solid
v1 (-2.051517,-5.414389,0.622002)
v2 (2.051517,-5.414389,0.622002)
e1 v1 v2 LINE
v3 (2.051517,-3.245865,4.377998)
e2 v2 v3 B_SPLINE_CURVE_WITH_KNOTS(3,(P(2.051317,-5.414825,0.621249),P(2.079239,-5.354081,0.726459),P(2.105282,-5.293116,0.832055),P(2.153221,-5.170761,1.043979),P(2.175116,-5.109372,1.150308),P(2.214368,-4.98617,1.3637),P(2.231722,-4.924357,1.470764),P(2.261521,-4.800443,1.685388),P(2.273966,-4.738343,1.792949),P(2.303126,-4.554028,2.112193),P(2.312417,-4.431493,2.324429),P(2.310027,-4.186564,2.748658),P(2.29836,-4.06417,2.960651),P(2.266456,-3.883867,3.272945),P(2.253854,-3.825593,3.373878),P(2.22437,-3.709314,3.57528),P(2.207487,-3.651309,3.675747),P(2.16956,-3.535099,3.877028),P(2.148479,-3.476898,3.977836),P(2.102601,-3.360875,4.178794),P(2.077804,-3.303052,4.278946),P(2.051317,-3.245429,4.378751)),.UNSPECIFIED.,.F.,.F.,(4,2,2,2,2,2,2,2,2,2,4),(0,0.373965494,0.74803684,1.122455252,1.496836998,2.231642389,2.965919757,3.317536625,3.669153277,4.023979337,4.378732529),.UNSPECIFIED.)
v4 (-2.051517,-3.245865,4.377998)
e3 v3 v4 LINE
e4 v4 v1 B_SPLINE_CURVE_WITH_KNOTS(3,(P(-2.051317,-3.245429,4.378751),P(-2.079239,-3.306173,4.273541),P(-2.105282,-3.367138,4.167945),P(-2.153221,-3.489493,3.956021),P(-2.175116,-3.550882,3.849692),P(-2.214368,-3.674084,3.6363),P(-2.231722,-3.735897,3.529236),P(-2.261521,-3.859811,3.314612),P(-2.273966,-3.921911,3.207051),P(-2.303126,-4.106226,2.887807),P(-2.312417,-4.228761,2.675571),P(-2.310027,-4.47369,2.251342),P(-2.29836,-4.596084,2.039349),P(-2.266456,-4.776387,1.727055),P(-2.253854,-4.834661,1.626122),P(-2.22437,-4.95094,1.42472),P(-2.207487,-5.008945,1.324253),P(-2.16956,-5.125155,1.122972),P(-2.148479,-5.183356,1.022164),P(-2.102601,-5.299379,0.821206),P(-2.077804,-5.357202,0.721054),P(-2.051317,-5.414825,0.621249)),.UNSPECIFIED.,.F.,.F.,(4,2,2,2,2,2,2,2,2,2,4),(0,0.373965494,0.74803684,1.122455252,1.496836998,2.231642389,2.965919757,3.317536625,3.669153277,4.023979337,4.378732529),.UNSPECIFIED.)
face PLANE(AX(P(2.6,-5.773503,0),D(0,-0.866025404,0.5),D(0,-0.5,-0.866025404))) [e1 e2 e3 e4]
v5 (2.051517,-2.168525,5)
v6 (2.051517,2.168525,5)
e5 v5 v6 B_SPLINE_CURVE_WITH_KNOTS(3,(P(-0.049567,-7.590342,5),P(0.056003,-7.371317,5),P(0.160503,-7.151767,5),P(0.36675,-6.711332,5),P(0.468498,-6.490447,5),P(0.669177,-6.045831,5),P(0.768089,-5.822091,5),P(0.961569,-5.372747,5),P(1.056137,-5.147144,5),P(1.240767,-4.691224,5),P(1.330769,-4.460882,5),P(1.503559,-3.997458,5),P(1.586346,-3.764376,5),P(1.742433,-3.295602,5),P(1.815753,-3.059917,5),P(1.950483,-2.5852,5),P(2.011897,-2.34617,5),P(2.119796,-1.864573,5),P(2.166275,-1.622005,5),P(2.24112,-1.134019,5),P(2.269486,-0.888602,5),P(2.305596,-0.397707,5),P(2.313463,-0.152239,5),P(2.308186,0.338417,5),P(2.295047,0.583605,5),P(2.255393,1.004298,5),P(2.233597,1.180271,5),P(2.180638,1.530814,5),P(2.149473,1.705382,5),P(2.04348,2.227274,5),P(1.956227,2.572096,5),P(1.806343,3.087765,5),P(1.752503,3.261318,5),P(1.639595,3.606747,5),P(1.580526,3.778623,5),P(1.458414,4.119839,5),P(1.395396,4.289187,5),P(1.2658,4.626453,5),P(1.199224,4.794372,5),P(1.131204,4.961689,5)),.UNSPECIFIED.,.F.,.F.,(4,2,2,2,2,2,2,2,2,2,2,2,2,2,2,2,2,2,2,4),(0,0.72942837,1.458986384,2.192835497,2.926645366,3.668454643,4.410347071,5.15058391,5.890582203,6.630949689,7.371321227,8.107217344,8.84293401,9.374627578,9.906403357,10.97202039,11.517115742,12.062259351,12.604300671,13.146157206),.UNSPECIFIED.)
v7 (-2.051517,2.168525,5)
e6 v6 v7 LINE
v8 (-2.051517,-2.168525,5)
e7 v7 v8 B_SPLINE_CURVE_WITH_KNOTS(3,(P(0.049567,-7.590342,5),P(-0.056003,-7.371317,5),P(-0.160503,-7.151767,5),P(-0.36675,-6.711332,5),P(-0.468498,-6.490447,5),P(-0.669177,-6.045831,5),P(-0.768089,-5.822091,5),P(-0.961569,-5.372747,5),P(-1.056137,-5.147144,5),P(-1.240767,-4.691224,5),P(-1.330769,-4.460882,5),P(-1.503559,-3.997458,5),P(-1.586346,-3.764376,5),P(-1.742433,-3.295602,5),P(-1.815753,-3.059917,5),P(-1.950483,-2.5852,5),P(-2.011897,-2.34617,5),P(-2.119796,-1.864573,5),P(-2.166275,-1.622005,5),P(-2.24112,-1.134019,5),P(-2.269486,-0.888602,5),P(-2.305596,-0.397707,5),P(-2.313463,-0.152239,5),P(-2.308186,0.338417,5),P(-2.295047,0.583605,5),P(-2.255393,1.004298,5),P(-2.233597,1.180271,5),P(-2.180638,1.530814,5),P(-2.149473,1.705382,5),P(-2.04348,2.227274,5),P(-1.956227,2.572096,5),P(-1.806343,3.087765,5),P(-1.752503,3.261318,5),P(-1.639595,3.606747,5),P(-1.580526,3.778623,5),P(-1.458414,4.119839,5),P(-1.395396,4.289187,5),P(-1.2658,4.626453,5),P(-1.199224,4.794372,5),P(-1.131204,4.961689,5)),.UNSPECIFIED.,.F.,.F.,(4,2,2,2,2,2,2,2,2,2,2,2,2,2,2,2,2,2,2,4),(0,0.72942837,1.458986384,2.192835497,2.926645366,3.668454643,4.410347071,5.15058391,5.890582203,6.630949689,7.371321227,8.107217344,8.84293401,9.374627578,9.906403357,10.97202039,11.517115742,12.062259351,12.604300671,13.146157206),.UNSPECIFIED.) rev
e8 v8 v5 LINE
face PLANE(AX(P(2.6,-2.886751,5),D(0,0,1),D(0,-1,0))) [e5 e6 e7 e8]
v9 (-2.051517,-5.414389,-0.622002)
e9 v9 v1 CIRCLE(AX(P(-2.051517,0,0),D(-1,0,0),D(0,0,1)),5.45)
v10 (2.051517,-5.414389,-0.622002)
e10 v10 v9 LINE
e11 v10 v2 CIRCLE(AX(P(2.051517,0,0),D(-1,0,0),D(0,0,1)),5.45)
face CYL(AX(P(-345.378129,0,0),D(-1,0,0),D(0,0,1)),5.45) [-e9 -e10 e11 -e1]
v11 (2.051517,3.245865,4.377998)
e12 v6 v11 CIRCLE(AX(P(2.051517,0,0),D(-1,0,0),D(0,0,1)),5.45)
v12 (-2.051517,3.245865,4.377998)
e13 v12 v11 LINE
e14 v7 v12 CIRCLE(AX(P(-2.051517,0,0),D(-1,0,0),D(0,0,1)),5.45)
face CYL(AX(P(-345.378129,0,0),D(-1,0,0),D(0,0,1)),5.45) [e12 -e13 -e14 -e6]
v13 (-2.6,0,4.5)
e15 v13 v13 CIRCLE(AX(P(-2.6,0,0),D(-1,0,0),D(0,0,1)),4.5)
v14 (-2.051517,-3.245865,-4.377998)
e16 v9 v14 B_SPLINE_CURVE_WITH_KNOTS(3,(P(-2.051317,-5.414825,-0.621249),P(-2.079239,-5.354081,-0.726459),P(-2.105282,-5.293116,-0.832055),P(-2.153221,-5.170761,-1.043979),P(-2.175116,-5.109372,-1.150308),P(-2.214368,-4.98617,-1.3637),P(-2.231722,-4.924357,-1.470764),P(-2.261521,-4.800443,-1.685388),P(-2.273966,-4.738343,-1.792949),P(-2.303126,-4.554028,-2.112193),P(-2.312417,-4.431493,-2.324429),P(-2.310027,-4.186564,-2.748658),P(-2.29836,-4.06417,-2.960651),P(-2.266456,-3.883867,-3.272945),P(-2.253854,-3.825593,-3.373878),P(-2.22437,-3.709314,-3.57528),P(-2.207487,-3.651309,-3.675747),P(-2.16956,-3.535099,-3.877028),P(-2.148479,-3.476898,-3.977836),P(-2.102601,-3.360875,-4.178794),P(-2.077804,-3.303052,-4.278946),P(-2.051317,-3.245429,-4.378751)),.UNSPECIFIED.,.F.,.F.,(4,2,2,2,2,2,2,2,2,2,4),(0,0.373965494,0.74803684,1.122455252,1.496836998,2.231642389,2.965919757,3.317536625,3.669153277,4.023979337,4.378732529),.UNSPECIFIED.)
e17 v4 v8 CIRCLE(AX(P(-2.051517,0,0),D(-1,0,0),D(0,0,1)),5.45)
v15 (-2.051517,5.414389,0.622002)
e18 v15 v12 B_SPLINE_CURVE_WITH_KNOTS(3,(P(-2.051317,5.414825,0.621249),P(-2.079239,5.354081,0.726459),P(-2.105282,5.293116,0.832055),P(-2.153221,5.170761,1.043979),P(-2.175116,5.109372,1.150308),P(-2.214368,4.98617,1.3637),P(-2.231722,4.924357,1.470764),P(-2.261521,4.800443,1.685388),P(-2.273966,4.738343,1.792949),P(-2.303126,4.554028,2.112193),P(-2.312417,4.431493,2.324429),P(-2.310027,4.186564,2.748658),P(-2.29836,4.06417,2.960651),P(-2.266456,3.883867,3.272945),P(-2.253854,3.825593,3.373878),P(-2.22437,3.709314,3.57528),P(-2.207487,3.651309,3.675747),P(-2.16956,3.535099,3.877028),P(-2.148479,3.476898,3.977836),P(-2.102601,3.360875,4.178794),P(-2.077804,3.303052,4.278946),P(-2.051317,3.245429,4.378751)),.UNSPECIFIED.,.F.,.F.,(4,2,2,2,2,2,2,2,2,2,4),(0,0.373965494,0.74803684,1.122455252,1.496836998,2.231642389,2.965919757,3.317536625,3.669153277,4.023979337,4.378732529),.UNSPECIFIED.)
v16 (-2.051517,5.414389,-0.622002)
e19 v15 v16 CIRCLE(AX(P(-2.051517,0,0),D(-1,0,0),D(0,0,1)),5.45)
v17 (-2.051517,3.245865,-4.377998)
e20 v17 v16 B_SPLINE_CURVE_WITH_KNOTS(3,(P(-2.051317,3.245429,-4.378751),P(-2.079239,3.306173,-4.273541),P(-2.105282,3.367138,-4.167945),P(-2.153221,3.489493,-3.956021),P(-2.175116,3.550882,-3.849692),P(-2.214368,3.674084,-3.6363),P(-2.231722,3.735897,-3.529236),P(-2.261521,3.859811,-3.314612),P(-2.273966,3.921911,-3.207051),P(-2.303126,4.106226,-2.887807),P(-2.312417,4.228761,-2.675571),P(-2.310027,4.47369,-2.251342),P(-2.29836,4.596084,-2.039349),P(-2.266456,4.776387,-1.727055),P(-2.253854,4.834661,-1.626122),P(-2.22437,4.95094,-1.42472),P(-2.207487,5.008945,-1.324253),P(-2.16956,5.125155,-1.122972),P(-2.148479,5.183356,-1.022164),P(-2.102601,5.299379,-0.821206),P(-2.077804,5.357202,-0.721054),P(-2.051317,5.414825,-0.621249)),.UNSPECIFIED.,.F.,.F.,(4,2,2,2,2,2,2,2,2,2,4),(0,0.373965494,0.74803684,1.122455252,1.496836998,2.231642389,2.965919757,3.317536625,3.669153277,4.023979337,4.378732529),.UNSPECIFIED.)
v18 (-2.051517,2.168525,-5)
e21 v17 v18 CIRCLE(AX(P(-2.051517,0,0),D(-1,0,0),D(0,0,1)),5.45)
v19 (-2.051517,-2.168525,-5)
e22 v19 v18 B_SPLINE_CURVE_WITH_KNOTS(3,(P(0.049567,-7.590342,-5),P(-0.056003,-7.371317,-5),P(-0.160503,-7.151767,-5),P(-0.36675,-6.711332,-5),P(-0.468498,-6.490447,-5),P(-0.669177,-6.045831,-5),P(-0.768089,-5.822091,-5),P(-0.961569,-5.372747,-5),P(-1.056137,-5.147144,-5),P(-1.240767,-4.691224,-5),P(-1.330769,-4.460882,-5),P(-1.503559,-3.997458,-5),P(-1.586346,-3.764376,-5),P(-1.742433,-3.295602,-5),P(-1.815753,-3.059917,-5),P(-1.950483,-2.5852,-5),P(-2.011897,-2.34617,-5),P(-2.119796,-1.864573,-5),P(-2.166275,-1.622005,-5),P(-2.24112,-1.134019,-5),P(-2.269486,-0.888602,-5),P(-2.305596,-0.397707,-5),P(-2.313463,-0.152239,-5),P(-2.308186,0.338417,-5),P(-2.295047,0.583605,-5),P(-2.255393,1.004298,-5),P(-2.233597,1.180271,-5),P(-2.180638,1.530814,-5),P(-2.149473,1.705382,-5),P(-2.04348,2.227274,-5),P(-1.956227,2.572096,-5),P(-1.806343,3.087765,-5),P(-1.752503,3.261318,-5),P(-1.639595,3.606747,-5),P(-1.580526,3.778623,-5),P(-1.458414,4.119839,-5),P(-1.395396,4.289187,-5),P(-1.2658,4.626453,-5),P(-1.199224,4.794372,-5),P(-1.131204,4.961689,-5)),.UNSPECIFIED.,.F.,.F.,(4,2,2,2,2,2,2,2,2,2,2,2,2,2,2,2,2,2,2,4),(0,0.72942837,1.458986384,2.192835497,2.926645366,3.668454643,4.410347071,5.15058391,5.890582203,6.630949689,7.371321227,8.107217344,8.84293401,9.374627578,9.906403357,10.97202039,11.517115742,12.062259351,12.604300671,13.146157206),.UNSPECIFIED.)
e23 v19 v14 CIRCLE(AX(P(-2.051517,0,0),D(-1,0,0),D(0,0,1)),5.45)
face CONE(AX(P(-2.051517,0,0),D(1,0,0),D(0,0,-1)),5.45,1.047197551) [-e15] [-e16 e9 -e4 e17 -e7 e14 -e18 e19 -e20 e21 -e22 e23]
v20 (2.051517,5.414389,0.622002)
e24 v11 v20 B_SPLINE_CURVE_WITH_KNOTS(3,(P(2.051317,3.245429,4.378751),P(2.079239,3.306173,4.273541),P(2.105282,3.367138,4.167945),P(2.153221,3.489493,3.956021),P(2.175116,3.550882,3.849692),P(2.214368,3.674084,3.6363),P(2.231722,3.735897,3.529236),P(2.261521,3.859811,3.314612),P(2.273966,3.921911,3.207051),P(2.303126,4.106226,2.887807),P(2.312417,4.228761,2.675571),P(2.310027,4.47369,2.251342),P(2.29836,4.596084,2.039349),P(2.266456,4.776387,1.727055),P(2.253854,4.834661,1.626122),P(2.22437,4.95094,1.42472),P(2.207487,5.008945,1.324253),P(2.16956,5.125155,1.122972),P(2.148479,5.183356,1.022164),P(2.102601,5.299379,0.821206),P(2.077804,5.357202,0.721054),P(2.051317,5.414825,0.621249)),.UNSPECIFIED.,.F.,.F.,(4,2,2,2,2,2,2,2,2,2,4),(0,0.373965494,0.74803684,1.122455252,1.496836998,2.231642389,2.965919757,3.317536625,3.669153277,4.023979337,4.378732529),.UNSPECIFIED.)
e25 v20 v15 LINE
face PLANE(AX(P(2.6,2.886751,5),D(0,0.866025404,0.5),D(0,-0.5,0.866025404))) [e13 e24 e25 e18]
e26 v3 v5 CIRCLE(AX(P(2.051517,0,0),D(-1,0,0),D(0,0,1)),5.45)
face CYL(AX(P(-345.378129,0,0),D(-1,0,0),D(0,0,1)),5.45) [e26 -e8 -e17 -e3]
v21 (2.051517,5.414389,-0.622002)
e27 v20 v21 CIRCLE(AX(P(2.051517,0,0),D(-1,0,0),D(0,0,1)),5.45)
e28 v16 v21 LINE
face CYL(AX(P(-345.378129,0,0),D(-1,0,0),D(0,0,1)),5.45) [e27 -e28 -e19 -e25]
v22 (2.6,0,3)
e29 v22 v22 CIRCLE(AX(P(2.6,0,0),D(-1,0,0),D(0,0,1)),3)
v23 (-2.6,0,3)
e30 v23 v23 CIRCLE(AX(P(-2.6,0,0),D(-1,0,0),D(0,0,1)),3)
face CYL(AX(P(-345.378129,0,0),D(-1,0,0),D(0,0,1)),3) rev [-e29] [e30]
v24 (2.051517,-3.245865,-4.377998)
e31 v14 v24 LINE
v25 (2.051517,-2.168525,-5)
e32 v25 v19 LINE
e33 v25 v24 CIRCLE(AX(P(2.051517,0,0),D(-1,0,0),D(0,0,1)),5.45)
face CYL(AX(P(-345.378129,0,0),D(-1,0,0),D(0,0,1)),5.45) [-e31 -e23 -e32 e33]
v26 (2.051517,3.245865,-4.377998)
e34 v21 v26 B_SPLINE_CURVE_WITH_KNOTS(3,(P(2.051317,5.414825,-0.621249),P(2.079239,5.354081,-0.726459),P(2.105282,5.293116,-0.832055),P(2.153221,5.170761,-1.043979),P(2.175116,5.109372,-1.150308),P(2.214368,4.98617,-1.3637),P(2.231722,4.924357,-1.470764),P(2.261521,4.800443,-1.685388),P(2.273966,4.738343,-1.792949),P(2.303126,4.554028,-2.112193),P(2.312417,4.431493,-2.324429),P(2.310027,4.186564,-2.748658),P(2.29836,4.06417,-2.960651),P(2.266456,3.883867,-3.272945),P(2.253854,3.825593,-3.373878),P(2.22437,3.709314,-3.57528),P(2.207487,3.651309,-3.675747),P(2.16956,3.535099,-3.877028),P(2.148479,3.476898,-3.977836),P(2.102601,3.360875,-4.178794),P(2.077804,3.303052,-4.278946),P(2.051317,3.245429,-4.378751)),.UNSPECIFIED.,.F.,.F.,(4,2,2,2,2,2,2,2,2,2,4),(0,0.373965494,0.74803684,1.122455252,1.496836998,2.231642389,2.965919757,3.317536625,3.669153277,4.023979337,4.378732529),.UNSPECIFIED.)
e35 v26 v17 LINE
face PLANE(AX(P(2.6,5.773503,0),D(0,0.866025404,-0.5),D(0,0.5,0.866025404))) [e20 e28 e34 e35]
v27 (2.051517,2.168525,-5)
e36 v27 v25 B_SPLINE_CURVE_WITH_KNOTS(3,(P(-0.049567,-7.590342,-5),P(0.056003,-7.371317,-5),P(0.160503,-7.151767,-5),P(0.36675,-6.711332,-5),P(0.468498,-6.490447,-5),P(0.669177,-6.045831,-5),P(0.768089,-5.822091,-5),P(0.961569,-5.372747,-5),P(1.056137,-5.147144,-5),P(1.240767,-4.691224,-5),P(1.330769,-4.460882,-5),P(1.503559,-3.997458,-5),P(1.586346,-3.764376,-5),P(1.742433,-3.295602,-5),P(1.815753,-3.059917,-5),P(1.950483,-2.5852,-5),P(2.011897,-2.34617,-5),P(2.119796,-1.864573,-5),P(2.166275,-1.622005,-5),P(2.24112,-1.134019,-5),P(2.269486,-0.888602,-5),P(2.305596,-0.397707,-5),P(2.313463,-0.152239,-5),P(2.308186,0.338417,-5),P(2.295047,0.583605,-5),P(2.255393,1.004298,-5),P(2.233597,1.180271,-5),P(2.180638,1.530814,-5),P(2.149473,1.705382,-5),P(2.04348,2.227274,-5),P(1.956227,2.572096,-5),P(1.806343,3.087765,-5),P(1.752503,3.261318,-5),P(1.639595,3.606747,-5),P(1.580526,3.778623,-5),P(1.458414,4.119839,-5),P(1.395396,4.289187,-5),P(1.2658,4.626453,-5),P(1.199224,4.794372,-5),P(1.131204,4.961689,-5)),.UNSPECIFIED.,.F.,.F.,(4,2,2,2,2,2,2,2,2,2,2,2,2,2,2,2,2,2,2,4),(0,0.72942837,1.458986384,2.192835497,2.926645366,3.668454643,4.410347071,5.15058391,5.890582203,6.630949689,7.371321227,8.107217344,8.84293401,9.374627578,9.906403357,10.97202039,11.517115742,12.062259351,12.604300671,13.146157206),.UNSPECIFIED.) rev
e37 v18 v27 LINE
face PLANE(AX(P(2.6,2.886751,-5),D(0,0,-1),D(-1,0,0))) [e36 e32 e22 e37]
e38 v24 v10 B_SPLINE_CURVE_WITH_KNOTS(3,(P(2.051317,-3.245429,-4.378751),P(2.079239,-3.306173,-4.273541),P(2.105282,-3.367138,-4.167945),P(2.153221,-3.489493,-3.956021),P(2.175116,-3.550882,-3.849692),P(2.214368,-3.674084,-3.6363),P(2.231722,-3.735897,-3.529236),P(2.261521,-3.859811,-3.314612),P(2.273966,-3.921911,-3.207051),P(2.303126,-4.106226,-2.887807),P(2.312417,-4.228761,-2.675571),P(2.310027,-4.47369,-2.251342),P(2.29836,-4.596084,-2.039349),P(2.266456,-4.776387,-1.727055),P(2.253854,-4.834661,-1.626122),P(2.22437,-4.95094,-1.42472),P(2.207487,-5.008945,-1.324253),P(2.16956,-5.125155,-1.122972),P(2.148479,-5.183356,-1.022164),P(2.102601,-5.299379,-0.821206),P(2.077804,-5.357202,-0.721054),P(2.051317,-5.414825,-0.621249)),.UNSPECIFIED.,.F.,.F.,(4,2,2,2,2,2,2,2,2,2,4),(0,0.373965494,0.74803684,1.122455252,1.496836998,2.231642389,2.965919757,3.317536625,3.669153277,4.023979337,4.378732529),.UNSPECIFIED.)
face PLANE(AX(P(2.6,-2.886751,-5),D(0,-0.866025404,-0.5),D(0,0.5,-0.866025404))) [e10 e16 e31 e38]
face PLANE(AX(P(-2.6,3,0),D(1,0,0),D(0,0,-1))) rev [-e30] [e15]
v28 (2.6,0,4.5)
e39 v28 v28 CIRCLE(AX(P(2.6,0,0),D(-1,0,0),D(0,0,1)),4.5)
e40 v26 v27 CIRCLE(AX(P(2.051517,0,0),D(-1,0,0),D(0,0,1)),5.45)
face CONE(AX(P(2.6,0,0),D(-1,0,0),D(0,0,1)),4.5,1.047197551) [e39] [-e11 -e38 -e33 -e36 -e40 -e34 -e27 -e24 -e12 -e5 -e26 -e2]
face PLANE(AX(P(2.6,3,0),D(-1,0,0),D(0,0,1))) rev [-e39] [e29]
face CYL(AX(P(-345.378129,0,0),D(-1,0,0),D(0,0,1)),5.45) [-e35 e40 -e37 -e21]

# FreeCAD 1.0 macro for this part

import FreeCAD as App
import Part
import Sketcher
Q = App.Units.Quantity


def add_polygon(sketch, points):
    """Adds a closed chain of lines whose ends are joined by coincident constraints."""
    first, n = sketch.GeometryCount, len(points)
    for a, b in zip(points, points[1:] + points[:1]):
        sketch.addGeometry(Part.LineSegment(App.Vector(*a, 0), App.Vector(*b, 0)), False)
    for i in range(n):
        sketch.addConstraint(Sketcher.Constraint("Coincident", first + i, 2, first + (i + 1) % n, 1))

doc = App.newDocument("Part")
body = doc.addObject("PartDesign::Body", "Body")

# Sketch on XY plane
sketch1 = body.newObject("Sketcher::SketchObject", "Sketch")
sketch1.AttachmentSupport = (doc.getObject("XY_Plane"), [""])
sketch1.MapMode = "FlatFace"
add_polygon(sketch1, [(-2.6, 3), (2.6, 3), (2.6, 4.5), (2.1, 5.5), (-2.1, 5.5), (-2.6, 4.5)])  # lines 0-5
sketch1.addConstraint([
    Sketcher.Constraint("Horizontal", 0),
    Sketcher.Constraint("Vertical", 1),
    Sketcher.Constraint("Horizontal", 3),
    Sketcher.Constraint("Vertical", 5),
    Sketcher.Constraint("Symmetric", 1, 2, 4, 2, -2),
    Sketcher.Constraint("Equal", 2, 4),
    Sketcher.Constraint("Angle", 2, Q("120 deg")),
    Sketcher.Constraint("DistanceX", 0, 1, 0, 2, Q("5.2 mm")),
    Sketcher.Constraint("DistanceY", 1, 1, 1, 2, Q("1.5 mm")),
    Sketcher.Constraint("DistanceY", -1, 1, 0, 2, Q("3 mm")),
    Sketcher.Constraint("DistanceY", -1, 1, 2, 2, Q("5.45 mm")),
])
revolution = body.newObject("PartDesign::Revolution", "Revolution")
revolution.Profile = sketch1
revolution.ReferenceAxis = (sketch1, ["H_Axis"])
revolution.Angle = 360

# Sketch on YZ plane
sketch2 = body.newObject("Sketcher::SketchObject", "Sketch001")
sketch2.AttachmentSupport = (doc.getObject("YZ_Plane"), [""])
sketch2.MapMode = "FlatFace"
sketch2.AttachmentOffset = App.Placement(App.Vector(0, 0, -2.6), App.Rotation())
add_polygon(sketch2, [(8, -8), (-8, -8), (-8, 8), (8, 8)])  # lines 0-3
add_polygon(sketch2, [(-3, 5), (-6, 0), (-3, -5), (3, -5), (6, 0), (3, 5)])  # lines 4-9
sketch2.addConstraint([
    Sketcher.Constraint("Horizontal", 0),
    Sketcher.Constraint("Vertical", 1),
    Sketcher.Constraint("Horizontal", 2),
    Sketcher.Constraint("Vertical", 3),
    Sketcher.Constraint("Horizontal", 6),
    Sketcher.Constraint("Horizontal", 9),
    Sketcher.Constraint("Symmetric", 0, 2, 2, 2, -1, 1),
    Sketcher.Constraint("Symmetric", 4, 2, 7, 2, -1, 1),
    Sketcher.Constraint("Symmetric", 5, 2, 8, 2, -1, 1),
    Sketcher.Constraint("PointOnObject", 4, 2, -1),
    Sketcher.Constraint("Parallel", 4, 7),
    Sketcher.Constraint("Vertical", 6, 2, 8, 2),
    Sketcher.Constraint("Equal", 2, 1),
    Sketcher.Constraint("Angle", 4, Q("-120 deg")),
    Sketcher.Constraint("DistanceY", 5, 2, -1, 1, Q("5 mm")),
    Sketcher.Constraint("DistanceX", 0, 2, 0, 1, Q("16.154 mm")),
    Sketcher.Constraint("DistanceX", 6, 1, 6, 2, Q("5.773503 mm")),
])
pocket1 = body.newObject("PartDesign::Pocket", "Pocket")
pocket1.Profile = sketch2
pocket1.Type = "ThroughAll"
pocket1.Reversed = True

doc.recompute()
